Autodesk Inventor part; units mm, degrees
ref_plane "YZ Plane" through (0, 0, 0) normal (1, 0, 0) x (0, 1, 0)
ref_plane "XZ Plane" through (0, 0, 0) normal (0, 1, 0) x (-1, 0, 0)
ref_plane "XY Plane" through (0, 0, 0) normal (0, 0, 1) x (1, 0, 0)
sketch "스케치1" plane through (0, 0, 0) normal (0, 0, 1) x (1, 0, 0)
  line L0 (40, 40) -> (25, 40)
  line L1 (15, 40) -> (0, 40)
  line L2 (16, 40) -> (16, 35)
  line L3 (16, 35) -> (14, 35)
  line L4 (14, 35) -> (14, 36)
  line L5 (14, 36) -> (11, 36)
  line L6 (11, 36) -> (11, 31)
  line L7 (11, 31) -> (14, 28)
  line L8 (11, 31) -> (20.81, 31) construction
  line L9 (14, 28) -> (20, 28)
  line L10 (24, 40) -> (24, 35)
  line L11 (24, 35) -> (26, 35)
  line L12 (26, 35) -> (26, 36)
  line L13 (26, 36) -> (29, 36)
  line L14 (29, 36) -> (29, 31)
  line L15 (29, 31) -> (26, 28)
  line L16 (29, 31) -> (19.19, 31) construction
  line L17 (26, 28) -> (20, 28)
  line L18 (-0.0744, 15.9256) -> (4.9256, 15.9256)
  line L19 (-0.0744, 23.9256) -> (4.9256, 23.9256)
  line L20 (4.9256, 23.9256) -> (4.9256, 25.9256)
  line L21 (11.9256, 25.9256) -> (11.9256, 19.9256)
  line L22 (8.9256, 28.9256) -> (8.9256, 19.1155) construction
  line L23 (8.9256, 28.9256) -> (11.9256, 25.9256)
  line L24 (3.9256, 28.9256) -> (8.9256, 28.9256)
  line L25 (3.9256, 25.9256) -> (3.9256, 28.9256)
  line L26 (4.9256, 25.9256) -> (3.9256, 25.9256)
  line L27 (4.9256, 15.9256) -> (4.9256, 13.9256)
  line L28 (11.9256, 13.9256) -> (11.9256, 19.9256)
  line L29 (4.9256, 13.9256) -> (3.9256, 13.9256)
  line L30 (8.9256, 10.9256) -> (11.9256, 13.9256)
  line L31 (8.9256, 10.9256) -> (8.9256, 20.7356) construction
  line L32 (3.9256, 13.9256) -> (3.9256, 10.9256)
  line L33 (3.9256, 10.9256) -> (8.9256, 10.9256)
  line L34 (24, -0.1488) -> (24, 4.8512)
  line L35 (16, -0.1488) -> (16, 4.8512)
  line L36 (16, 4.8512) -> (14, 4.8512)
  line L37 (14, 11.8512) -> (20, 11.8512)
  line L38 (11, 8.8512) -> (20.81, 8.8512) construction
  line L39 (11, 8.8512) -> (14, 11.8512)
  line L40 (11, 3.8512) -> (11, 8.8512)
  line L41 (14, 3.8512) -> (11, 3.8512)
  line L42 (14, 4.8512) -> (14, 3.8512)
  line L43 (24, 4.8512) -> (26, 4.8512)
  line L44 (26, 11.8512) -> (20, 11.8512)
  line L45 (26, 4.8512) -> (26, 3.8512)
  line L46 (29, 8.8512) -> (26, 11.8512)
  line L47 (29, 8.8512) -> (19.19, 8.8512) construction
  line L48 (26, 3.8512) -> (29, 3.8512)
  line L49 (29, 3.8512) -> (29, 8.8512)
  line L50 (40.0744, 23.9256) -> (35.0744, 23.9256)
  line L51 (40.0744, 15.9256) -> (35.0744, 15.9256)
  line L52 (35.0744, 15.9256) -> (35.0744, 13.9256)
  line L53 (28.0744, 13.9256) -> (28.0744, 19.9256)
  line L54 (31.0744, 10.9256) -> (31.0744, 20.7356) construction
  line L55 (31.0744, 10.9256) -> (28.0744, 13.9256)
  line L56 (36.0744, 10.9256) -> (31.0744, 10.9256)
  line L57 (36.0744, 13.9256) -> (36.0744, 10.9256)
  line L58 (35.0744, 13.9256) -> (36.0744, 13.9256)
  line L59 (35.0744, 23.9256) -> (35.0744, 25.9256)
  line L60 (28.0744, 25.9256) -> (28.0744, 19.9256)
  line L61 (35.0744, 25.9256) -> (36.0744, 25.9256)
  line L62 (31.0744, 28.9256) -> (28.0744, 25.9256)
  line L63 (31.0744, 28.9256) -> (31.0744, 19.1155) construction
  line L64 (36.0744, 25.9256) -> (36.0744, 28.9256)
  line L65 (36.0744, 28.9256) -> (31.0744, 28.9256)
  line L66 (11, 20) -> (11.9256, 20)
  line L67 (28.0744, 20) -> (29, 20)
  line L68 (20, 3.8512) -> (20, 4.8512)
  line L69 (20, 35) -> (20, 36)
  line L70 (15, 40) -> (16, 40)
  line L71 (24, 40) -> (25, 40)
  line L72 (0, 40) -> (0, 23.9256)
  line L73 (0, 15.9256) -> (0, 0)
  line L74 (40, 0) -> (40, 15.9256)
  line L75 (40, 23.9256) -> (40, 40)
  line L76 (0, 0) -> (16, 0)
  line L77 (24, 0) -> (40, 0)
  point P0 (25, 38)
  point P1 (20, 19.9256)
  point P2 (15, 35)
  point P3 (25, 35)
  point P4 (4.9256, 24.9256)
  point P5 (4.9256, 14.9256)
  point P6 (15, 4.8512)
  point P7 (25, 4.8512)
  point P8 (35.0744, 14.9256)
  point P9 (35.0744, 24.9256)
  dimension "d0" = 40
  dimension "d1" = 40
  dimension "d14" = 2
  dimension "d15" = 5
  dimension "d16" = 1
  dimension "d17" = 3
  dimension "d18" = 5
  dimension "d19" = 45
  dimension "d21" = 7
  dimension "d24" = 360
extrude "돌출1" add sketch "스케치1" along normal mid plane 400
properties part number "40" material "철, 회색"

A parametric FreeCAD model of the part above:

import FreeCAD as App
import Part
import Sketcher

doc = App.newDocument("Part")
body = doc.addObject("PartDesign::Body", "Body")

# Sketch on XY plane
sketch1 = body.newObject("Sketcher::SketchObject", "Sketch")
sketch1.AttachmentSupport = (doc.getObject("XY_Plane"), [""])
sketch1.MapMode = "FlatFace"
sketch1.addGeometry([
    Part.LineSegment(App.Vector(40, 23.9, 0), App.Vector(40, 40, 0)),  # 0
    Part.LineSegment(App.Vector(40, 40, 0), App.Vector(24, 40, 0)),  # 1
    Part.LineSegment(App.Vector(24, 40, 0), App.Vector(24, 35, 0)),  # 2
    Part.LineSegment(App.Vector(24, 35, 0), App.Vector(26, 35, 0)),  # 3
    Part.LineSegment(App.Vector(26, 35, 0), App.Vector(26, 36, 0)),  # 4
    Part.LineSegment(App.Vector(26, 36, 0), App.Vector(29, 36, 0)),  # 5
    Part.LineSegment(App.Vector(29, 36, 0), App.Vector(29, 31, 0)),  # 6
    Part.LineSegment(App.Vector(29, 31, 0), App.Vector(26, 28, 0)),  # 7
    Part.LineSegment(App.Vector(26, 28, 0), App.Vector(14, 28, 0)),  # 8
    Part.LineSegment(App.Vector(14, 28, 0), App.Vector(11, 31, 0)),  # 9
    Part.LineSegment(App.Vector(11, 31, 0), App.Vector(11, 36, 0)),  # 10
    Part.LineSegment(App.Vector(11, 36, 0), App.Vector(14, 36, 0)),  # 11
    Part.LineSegment(App.Vector(14, 36, 0), App.Vector(14, 35, 0)),  # 12
    Part.LineSegment(App.Vector(14, 35, 0), App.Vector(16, 35, 0)),  # 13
    Part.LineSegment(App.Vector(16, 35, 0), App.Vector(16, 40, 0)),  # 14
    Part.LineSegment(App.Vector(16, 40, 0), App.Vector(0, 40, 0)),  # 15
    Part.LineSegment(App.Vector(0, 40, 0), App.Vector(0, 23.9, 0)),  # 16
    Part.LineSegment(App.Vector(0, 23.9, 0), App.Vector(4.9, 23.9, 0)),  # 17
    Part.LineSegment(App.Vector(4.9, 23.9, 0), App.Vector(4.9, 25.9, 0)),  # 18
    Part.LineSegment(App.Vector(4.9, 25.9, 0), App.Vector(3.9, 25.9, 0)),  # 19
    Part.LineSegment(App.Vector(3.9, 25.9, 0), App.Vector(3.9, 28.9, 0)),  # 20
    Part.LineSegment(App.Vector(3.9, 28.9, 0), App.Vector(8.9, 28.9, 0)),  # 21
    Part.LineSegment(App.Vector(8.9, 28.9, 0), App.Vector(11.9, 25.9, 0)),  # 22
    Part.LineSegment(App.Vector(11.9, 25.9, 0), App.Vector(11.9, 13.9, 0)),  # 23
    Part.LineSegment(App.Vector(11.9, 13.9, 0), App.Vector(8.9, 10.9, 0)),  # 24
    Part.LineSegment(App.Vector(8.9, 10.9, 0), App.Vector(3.9, 10.9, 0)),  # 25
    Part.LineSegment(App.Vector(3.9, 10.9, 0), App.Vector(3.9, 13.9, 0)),  # 26
    Part.LineSegment(App.Vector(3.9, 13.9, 0), App.Vector(4.9, 13.9, 0)),  # 27
    Part.LineSegment(App.Vector(4.9, 13.9, 0), App.Vector(4.9, 15.9, 0)),  # 28
    Part.LineSegment(App.Vector(4.9, 15.9, 0), App.Vector(0, 15.9, 0)),  # 29
    Part.LineSegment(App.Vector(0, 15.9, 0), App.Vector(0, 0, 0)),  # 30
    Part.LineSegment(App.Vector(0, 0, 0), App.Vector(16, 0, 0)),  # 31
    Part.LineSegment(App.Vector(16, 0, 0), App.Vector(16, 4.9, 0)),  # 32
    Part.LineSegment(App.Vector(16, 4.9, 0), App.Vector(14, 4.9, 0)),  # 33
    Part.LineSegment(App.Vector(14, 4.9, 0), App.Vector(14, 3.9, 0)),  # 34
    Part.LineSegment(App.Vector(14, 3.9, 0), App.Vector(11, 3.9, 0)),  # 35
    Part.LineSegment(App.Vector(11, 3.9, 0), App.Vector(11, 8.9, 0)),  # 36
    Part.LineSegment(App.Vector(11, 8.9, 0), App.Vector(14, 11.9, 0)),  # 37
    Part.LineSegment(App.Vector(14, 11.9, 0), App.Vector(26, 11.9, 0)),  # 38
    Part.LineSegment(App.Vector(26, 11.9, 0), App.Vector(29, 8.9, 0)),  # 39
    Part.LineSegment(App.Vector(29, 8.9, 0), App.Vector(29, 3.9, 0)),  # 40
    Part.LineSegment(App.Vector(29, 3.9, 0), App.Vector(26, 3.9, 0)),  # 41
    Part.LineSegment(App.Vector(26, 3.9, 0), App.Vector(26, 4.9, 0)),  # 42
    Part.LineSegment(App.Vector(26, 4.9, 0), App.Vector(24, 4.9, 0)),  # 43
    Part.LineSegment(App.Vector(24, 4.9, 0), App.Vector(24, 0, 0)),  # 44
    Part.LineSegment(App.Vector(24, 0, 0), App.Vector(40, 0, 0)),  # 45
    Part.LineSegment(App.Vector(40, 0, 0), App.Vector(40, 15.9, 0)),  # 46
    Part.LineSegment(App.Vector(40, 15.9, 0), App.Vector(35.1, 15.9, 0)),  # 47
    Part.LineSegment(App.Vector(35.1, 15.9, 0), App.Vector(35.1, 13.9, 0)),  # 48
    Part.LineSegment(App.Vector(35.1, 13.9, 0), App.Vector(36.1, 13.9, 0)),  # 49
    Part.LineSegment(App.Vector(36.1, 13.9, 0), App.Vector(36.1, 10.9, 0)),  # 50
    Part.LineSegment(App.Vector(36.1, 10.9, 0), App.Vector(31.1, 10.9, 0)),  # 51
    Part.LineSegment(App.Vector(31.1, 10.9, 0), App.Vector(28.1, 13.9, 0)),  # 52
    Part.LineSegment(App.Vector(28.1, 13.9, 0), App.Vector(28.1, 25.9, 0)),  # 53
    Part.LineSegment(App.Vector(28.1, 25.9, 0), App.Vector(31.1, 28.9, 0)),  # 54
    Part.LineSegment(App.Vector(31.1, 28.9, 0), App.Vector(36.1, 28.9, 0)),  # 55
    Part.LineSegment(App.Vector(36.1, 28.9, 0), App.Vector(36.1, 25.9, 0)),  # 56
    Part.LineSegment(App.Vector(36.1, 25.9, 0), App.Vector(35.1, 25.9, 0)),  # 57
    Part.LineSegment(App.Vector(35.1, 25.9, 0), App.Vector(35.1, 23.9, 0)),  # 58
    Part.LineSegment(App.Vector(35.1, 23.9, 0), App.Vector(40, 23.9, 0)),  # 59
], False)
sketch1.addConstraint([
    Sketcher.Constraint("Coincident", 0, 2, 1, 1),
    Sketcher.Constraint("Coincident", 1, 2, 2, 1),
    Sketcher.Constraint("Coincident", 2, 2, 3, 1),
    Sketcher.Constraint("Coincident", 3, 2, 4, 1),
    Sketcher.Constraint("Coincident", 4, 2, 5, 1),
    Sketcher.Constraint("Coincident", 5, 2, 6, 1),
    Sketcher.Constraint("Coincident", 6, 2, 7, 1),
    Sketcher.Constraint("Coincident", 7, 2, 8, 1),
    Sketcher.Constraint("Coincident", 8, 2, 9, 1),
    Sketcher.Constraint("Coincident", 9, 2, 10, 1),
    Sketcher.Constraint("Coincident", 10, 2, 11, 1),
    Sketcher.Constraint("Coincident", 11, 2, 12, 1),
    Sketcher.Constraint("Coincident", 12, 2, 13, 1),
    Sketcher.Constraint("Coincident", 13, 2, 14, 1),
    Sketcher.Constraint("Coincident", 14, 2, 15, 1),
    Sketcher.Constraint("Coincident", 15, 2, 16, 1),
    Sketcher.Constraint("Coincident", 16, 2, 17, 1),
    Sketcher.Constraint("Coincident", 17, 2, 18, 1),
    Sketcher.Constraint("Coincident", 18, 2, 19, 1),
    Sketcher.Constraint("Coincident", 19, 2, 20, 1),
    Sketcher.Constraint("Coincident", 20, 2, 21, 1),
    Sketcher.Constraint("Coincident", 21, 2, 22, 1),
    Sketcher.Constraint("Coincident", 22, 2, 23, 1),
    Sketcher.Constraint("Coincident", 23, 2, 24, 1),
    Sketcher.Constraint("Coincident", 24, 2, 25, 1),
    Sketcher.Constraint("Coincident", 25, 2, 26, 1),
    Sketcher.Constraint("Coincident", 26, 2, 27, 1),
    Sketcher.Constraint("Coincident", 27, 2, 28, 1),
    Sketcher.Constraint("Coincident", 28, 2, 29, 1),
    Sketcher.Constraint("Coincident", 29, 2, 30, 1),
    Sketcher.Constraint("Coincident", 30, 2, 31, 1),
    Sketcher.Constraint("Coincident", 31, 2, 32, 1),
    Sketcher.Constraint("Coincident", 32, 2, 33, 1),
    Sketcher.Constraint("Coincident", 33, 2, 34, 1),
    Sketcher.Constraint("Coincident", 34, 2, 35, 1),
    Sketcher.Constraint("Coincident", 35, 2, 36, 1),
    Sketcher.Constraint("Coincident", 36, 2, 37, 1),
    Sketcher.Constraint("Coincident", 37, 2, 38, 1),
    Sketcher.Constraint("Coincident", 38, 2, 39, 1),
    Sketcher.Constraint("Coincident", 39, 2, 40, 1),
    Sketcher.Constraint("Coincident", 40, 2, 41, 1),
    Sketcher.Constraint("Coincident", 41, 2, 42, 1),
    Sketcher.Constraint("Coincident", 42, 2, 43, 1),
    Sketcher.Constraint("Coincident", 43, 2, 44, 1),
    Sketcher.Constraint("Coincident", 44, 2, 45, 1),
    Sketcher.Constraint("Coincident", 45, 2, 46, 1),
    Sketcher.Constraint("Coincident", 46, 2, 47, 1),
    Sketcher.Constraint("Coincident", 47, 2, 48, 1),
    Sketcher.Constraint("Coincident", 48, 2, 49, 1),
    Sketcher.Constraint("Coincident", 49, 2, 50, 1),
    Sketcher.Constraint("Coincident", 50, 2, 51, 1),
    Sketcher.Constraint("Coincident", 51, 2, 52, 1),
    Sketcher.Constraint("Coincident", 52, 2, 53, 1),
    Sketcher.Constraint("Coincident", 53, 2, 54, 1),
    Sketcher.Constraint("Coincident", 54, 2, 55, 1),
    Sketcher.Constraint("Coincident", 55, 2, 56, 1),
    Sketcher.Constraint("Coincident", 56, 2, 57, 1),
    Sketcher.Constraint("Coincident", 57, 2, 58, 1),
    Sketcher.Constraint("Coincident", 58, 2, 59, 1),
    Sketcher.Constraint("Coincident", 59, 2, 0, 1),
    Sketcher.Constraint("Vertical", 0),
    Sketcher.Constraint("Horizontal", 1),
    Sketcher.Constraint("Vertical", 2),
    Sketcher.Constraint("Horizontal", 3),
    Sketcher.Constraint("Vertical", 4),
    Sketcher.Constraint("Horizontal", 5),
    Sketcher.Constraint("Vertical", 6),
    Sketcher.Constraint("Horizontal", 8),
    Sketcher.Constraint("Vertical", 10),
    Sketcher.Constraint("Horizontal", 11),
    Sketcher.Constraint("Vertical", 12),
    Sketcher.Constraint("Horizontal", 13),
    Sketcher.Constraint("Vertical", 14),
    Sketcher.Constraint("Horizontal", 15),
    Sketcher.Constraint("Vertical", 16),
    Sketcher.Constraint("Horizontal", 17),
    Sketcher.Constraint("Vertical", 18),
    Sketcher.Constraint("Horizontal", 19),
    Sketcher.Constraint("Vertical", 20),
    Sketcher.Constraint("Horizontal", 21),
    Sketcher.Constraint("Vertical", 23),
    Sketcher.Constraint("Horizontal", 25),
    Sketcher.Constraint("Vertical", 26),
    Sketcher.Constraint("Horizontal", 27),
    Sketcher.Constraint("Vertical", 28),
    Sketcher.Constraint("Horizontal", 29),
    Sketcher.Constraint("Vertical", 30),
    Sketcher.Constraint("Horizontal", 31),
    Sketcher.Constraint("Vertical", 32),
    Sketcher.Constraint("Horizontal", 33),
    Sketcher.Constraint("Vertical", 34),
    Sketcher.Constraint("Horizontal", 35),
    Sketcher.Constraint("Vertical", 36),
    Sketcher.Constraint("Horizontal", 38),
    Sketcher.Constraint("Vertical", 40),
    Sketcher.Constraint("Horizontal", 41),
    Sketcher.Constraint("Vertical", 42),
    Sketcher.Constraint("Horizontal", 43),
    Sketcher.Constraint("Vertical", 44),
    Sketcher.Constraint("Horizontal", 45),
    Sketcher.Constraint("Vertical", 46),
    Sketcher.Constraint("Horizontal", 47),
    Sketcher.Constraint("Vertical", 48),
    Sketcher.Constraint("Horizontal", 49),
    Sketcher.Constraint("Vertical", 50),
    Sketcher.Constraint("Horizontal", 51),
    Sketcher.Constraint("Vertical", 53),
    Sketcher.Constraint("Horizontal", 55),
    Sketcher.Constraint("Vertical", 56),
    Sketcher.Constraint("Horizontal", 57),
    Sketcher.Constraint("Vertical", 58),
    Sketcher.Constraint("Horizontal", 59),
    Sketcher.Constraint("Coincident", 30, 2, -1, 1),
    Sketcher.Constraint("PointOnObject", 15, 2, -2),
    Sketcher.Constraint("PointOnObject", 44, 2, -1),
    Sketcher.Constraint("Perpendicular", 7, 9),
    Sketcher.Constraint("Parallel", 9, 22),
    Sketcher.Constraint("Perpendicular", 22, 24),
    Sketcher.Constraint("Parallel", 24, 37),
    Sketcher.Constraint("Perpendicular", 37, 39),
    Sketcher.Constraint("Parallel", 39, 52),
    Sketcher.Constraint("Perpendicular", 52, 54),
    Sketcher.Constraint("Horizontal", 6, 2, 9, 2),
    Sketcher.Constraint("Horizontal", 5, 2, 10, 2),
    Sketcher.Constraint("Horizontal", 3, 2, 12, 2),
    Sketcher.Constraint("Horizontal", 1, 2, 14, 2),
    Sketcher.Constraint("Horizontal", 19, 2, 22, 2),
    Sketcher.Constraint("Horizontal", 23, 2, 26, 2),
    Sketcher.Constraint("Horizontal", 36, 2, 39, 2),
    Sketcher.Constraint("Horizontal", 35, 2, 40, 2),
    Sketcher.Constraint("Horizontal", 33, 2, 42, 2),
    Sketcher.Constraint("Horizontal", 29, 2, 46, 2),
    Sketcher.Constraint("Horizontal", 27, 2, 48, 2),
    Sketcher.Constraint("Horizontal", 25, 2, 50, 2),
    Sketcher.Constraint("Horizontal", 49, 2, 52, 2),
    Sketcher.Constraint("Horizontal", 22, 2, 53, 2),
    Sketcher.Constraint("Horizontal", 21, 2, 54, 2),
    Sketcher.Constraint("Horizontal", 53, 2, 56, 2),
    Sketcher.Constraint("Horizontal", 17, 2, 58, 2),
    Sketcher.Constraint("Vertical", 4, 2, 7, 2),
    Sketcher.Constraint("Vertical", 8, 2, 11, 2),
    Sketcher.Constraint("Vertical", 21, 2, 24, 2),
    Sketcher.Constraint("Vertical", 20, 2, 25, 2),
    Sketcher.Constraint("Vertical", 18, 2, 27, 2),
    Sketcher.Constraint("Vertical", 14, 2, 31, 2),
    Sketcher.Constraint("Vertical", 12, 2, 33, 2),
    Sketcher.Constraint("Vertical", 10, 2, 35, 2),
    Sketcher.Constraint("Vertical", 34, 2, 37, 2),
    Sketcher.Constraint("Vertical", 7, 2, 38, 2),
    Sketcher.Constraint("Vertical", 6, 2, 39, 2),
    Sketcher.Constraint("Vertical", 38, 2, 41, 2),
    Sketcher.Constraint("Vertical", 2, 2, 43, 2),
    Sketcher.Constraint("Vertical", 0, 2, 45, 2),
    Sketcher.Constraint("Vertical", 50, 2, 55, 2),
    Sketcher.Constraint("Vertical", 48, 2, 57, 2),
    Sketcher.Constraint("Equal", 3, 13),
    Sketcher.Constraint("Equal", 1, 15),
    Sketcher.Constraint("Equal", 29, 47),
    Sketcher.Constraint("Equal", 27, 49),
    Sketcher.Constraint("Equal", 25, 51),
    Sketcher.Constraint("Equal", 55, 2),
    Sketcher.Constraint("Equal", 57, 4),
    Sketcher.Constraint("Equal", 2, 6),
    Sketcher.Constraint("Equal", 43, 18),
    Sketcher.Constraint("Equal", 41, 20),
    Sketcher.Constraint("Equal", 38, 23),
    Sketcher.Constraint("Equal", 18, 28),
    Sketcher.Constraint("Equal", 12, 34),
    Sketcher.Constraint("Equal", 14, 36),
    Sketcher.Constraint("DistanceX", 3, 1, 3, 2, 2.0),
    Sketcher.Constraint("DistanceX", 5, 1, 5, 2, 3.0),
    Sketcher.Constraint("DistanceX", 19, 2, 19, 1, 1.0),
    Sketcher.Constraint("DistanceX", 21, 1, 21, 2, 5.0),
    Sketcher.Constraint("DistanceX", -1, 1, 0, 2, 40.0),
    Sketcher.Constraint("DistanceY", -1, 1, 0, 2, 40.0),
    Sketcher.Constraint("DistanceX", 1, 2, 1, 1, 16.0),
    Sketcher.Constraint("DistanceX", 17, 1, 17, 2, 4.9256),
    Sketcher.Constraint("DistanceY", 0, 1, 0, 2, 16.0744),
    Sketcher.Constraint("DistanceY", 32, 1, 32, 2, 4.8512),
])
pad1 = body.newObject("PartDesign::Pad", "Pad")
pad1.Profile = sketch1
pad1.Length = 400
pad1.Midplane = True

doc.recompute()
